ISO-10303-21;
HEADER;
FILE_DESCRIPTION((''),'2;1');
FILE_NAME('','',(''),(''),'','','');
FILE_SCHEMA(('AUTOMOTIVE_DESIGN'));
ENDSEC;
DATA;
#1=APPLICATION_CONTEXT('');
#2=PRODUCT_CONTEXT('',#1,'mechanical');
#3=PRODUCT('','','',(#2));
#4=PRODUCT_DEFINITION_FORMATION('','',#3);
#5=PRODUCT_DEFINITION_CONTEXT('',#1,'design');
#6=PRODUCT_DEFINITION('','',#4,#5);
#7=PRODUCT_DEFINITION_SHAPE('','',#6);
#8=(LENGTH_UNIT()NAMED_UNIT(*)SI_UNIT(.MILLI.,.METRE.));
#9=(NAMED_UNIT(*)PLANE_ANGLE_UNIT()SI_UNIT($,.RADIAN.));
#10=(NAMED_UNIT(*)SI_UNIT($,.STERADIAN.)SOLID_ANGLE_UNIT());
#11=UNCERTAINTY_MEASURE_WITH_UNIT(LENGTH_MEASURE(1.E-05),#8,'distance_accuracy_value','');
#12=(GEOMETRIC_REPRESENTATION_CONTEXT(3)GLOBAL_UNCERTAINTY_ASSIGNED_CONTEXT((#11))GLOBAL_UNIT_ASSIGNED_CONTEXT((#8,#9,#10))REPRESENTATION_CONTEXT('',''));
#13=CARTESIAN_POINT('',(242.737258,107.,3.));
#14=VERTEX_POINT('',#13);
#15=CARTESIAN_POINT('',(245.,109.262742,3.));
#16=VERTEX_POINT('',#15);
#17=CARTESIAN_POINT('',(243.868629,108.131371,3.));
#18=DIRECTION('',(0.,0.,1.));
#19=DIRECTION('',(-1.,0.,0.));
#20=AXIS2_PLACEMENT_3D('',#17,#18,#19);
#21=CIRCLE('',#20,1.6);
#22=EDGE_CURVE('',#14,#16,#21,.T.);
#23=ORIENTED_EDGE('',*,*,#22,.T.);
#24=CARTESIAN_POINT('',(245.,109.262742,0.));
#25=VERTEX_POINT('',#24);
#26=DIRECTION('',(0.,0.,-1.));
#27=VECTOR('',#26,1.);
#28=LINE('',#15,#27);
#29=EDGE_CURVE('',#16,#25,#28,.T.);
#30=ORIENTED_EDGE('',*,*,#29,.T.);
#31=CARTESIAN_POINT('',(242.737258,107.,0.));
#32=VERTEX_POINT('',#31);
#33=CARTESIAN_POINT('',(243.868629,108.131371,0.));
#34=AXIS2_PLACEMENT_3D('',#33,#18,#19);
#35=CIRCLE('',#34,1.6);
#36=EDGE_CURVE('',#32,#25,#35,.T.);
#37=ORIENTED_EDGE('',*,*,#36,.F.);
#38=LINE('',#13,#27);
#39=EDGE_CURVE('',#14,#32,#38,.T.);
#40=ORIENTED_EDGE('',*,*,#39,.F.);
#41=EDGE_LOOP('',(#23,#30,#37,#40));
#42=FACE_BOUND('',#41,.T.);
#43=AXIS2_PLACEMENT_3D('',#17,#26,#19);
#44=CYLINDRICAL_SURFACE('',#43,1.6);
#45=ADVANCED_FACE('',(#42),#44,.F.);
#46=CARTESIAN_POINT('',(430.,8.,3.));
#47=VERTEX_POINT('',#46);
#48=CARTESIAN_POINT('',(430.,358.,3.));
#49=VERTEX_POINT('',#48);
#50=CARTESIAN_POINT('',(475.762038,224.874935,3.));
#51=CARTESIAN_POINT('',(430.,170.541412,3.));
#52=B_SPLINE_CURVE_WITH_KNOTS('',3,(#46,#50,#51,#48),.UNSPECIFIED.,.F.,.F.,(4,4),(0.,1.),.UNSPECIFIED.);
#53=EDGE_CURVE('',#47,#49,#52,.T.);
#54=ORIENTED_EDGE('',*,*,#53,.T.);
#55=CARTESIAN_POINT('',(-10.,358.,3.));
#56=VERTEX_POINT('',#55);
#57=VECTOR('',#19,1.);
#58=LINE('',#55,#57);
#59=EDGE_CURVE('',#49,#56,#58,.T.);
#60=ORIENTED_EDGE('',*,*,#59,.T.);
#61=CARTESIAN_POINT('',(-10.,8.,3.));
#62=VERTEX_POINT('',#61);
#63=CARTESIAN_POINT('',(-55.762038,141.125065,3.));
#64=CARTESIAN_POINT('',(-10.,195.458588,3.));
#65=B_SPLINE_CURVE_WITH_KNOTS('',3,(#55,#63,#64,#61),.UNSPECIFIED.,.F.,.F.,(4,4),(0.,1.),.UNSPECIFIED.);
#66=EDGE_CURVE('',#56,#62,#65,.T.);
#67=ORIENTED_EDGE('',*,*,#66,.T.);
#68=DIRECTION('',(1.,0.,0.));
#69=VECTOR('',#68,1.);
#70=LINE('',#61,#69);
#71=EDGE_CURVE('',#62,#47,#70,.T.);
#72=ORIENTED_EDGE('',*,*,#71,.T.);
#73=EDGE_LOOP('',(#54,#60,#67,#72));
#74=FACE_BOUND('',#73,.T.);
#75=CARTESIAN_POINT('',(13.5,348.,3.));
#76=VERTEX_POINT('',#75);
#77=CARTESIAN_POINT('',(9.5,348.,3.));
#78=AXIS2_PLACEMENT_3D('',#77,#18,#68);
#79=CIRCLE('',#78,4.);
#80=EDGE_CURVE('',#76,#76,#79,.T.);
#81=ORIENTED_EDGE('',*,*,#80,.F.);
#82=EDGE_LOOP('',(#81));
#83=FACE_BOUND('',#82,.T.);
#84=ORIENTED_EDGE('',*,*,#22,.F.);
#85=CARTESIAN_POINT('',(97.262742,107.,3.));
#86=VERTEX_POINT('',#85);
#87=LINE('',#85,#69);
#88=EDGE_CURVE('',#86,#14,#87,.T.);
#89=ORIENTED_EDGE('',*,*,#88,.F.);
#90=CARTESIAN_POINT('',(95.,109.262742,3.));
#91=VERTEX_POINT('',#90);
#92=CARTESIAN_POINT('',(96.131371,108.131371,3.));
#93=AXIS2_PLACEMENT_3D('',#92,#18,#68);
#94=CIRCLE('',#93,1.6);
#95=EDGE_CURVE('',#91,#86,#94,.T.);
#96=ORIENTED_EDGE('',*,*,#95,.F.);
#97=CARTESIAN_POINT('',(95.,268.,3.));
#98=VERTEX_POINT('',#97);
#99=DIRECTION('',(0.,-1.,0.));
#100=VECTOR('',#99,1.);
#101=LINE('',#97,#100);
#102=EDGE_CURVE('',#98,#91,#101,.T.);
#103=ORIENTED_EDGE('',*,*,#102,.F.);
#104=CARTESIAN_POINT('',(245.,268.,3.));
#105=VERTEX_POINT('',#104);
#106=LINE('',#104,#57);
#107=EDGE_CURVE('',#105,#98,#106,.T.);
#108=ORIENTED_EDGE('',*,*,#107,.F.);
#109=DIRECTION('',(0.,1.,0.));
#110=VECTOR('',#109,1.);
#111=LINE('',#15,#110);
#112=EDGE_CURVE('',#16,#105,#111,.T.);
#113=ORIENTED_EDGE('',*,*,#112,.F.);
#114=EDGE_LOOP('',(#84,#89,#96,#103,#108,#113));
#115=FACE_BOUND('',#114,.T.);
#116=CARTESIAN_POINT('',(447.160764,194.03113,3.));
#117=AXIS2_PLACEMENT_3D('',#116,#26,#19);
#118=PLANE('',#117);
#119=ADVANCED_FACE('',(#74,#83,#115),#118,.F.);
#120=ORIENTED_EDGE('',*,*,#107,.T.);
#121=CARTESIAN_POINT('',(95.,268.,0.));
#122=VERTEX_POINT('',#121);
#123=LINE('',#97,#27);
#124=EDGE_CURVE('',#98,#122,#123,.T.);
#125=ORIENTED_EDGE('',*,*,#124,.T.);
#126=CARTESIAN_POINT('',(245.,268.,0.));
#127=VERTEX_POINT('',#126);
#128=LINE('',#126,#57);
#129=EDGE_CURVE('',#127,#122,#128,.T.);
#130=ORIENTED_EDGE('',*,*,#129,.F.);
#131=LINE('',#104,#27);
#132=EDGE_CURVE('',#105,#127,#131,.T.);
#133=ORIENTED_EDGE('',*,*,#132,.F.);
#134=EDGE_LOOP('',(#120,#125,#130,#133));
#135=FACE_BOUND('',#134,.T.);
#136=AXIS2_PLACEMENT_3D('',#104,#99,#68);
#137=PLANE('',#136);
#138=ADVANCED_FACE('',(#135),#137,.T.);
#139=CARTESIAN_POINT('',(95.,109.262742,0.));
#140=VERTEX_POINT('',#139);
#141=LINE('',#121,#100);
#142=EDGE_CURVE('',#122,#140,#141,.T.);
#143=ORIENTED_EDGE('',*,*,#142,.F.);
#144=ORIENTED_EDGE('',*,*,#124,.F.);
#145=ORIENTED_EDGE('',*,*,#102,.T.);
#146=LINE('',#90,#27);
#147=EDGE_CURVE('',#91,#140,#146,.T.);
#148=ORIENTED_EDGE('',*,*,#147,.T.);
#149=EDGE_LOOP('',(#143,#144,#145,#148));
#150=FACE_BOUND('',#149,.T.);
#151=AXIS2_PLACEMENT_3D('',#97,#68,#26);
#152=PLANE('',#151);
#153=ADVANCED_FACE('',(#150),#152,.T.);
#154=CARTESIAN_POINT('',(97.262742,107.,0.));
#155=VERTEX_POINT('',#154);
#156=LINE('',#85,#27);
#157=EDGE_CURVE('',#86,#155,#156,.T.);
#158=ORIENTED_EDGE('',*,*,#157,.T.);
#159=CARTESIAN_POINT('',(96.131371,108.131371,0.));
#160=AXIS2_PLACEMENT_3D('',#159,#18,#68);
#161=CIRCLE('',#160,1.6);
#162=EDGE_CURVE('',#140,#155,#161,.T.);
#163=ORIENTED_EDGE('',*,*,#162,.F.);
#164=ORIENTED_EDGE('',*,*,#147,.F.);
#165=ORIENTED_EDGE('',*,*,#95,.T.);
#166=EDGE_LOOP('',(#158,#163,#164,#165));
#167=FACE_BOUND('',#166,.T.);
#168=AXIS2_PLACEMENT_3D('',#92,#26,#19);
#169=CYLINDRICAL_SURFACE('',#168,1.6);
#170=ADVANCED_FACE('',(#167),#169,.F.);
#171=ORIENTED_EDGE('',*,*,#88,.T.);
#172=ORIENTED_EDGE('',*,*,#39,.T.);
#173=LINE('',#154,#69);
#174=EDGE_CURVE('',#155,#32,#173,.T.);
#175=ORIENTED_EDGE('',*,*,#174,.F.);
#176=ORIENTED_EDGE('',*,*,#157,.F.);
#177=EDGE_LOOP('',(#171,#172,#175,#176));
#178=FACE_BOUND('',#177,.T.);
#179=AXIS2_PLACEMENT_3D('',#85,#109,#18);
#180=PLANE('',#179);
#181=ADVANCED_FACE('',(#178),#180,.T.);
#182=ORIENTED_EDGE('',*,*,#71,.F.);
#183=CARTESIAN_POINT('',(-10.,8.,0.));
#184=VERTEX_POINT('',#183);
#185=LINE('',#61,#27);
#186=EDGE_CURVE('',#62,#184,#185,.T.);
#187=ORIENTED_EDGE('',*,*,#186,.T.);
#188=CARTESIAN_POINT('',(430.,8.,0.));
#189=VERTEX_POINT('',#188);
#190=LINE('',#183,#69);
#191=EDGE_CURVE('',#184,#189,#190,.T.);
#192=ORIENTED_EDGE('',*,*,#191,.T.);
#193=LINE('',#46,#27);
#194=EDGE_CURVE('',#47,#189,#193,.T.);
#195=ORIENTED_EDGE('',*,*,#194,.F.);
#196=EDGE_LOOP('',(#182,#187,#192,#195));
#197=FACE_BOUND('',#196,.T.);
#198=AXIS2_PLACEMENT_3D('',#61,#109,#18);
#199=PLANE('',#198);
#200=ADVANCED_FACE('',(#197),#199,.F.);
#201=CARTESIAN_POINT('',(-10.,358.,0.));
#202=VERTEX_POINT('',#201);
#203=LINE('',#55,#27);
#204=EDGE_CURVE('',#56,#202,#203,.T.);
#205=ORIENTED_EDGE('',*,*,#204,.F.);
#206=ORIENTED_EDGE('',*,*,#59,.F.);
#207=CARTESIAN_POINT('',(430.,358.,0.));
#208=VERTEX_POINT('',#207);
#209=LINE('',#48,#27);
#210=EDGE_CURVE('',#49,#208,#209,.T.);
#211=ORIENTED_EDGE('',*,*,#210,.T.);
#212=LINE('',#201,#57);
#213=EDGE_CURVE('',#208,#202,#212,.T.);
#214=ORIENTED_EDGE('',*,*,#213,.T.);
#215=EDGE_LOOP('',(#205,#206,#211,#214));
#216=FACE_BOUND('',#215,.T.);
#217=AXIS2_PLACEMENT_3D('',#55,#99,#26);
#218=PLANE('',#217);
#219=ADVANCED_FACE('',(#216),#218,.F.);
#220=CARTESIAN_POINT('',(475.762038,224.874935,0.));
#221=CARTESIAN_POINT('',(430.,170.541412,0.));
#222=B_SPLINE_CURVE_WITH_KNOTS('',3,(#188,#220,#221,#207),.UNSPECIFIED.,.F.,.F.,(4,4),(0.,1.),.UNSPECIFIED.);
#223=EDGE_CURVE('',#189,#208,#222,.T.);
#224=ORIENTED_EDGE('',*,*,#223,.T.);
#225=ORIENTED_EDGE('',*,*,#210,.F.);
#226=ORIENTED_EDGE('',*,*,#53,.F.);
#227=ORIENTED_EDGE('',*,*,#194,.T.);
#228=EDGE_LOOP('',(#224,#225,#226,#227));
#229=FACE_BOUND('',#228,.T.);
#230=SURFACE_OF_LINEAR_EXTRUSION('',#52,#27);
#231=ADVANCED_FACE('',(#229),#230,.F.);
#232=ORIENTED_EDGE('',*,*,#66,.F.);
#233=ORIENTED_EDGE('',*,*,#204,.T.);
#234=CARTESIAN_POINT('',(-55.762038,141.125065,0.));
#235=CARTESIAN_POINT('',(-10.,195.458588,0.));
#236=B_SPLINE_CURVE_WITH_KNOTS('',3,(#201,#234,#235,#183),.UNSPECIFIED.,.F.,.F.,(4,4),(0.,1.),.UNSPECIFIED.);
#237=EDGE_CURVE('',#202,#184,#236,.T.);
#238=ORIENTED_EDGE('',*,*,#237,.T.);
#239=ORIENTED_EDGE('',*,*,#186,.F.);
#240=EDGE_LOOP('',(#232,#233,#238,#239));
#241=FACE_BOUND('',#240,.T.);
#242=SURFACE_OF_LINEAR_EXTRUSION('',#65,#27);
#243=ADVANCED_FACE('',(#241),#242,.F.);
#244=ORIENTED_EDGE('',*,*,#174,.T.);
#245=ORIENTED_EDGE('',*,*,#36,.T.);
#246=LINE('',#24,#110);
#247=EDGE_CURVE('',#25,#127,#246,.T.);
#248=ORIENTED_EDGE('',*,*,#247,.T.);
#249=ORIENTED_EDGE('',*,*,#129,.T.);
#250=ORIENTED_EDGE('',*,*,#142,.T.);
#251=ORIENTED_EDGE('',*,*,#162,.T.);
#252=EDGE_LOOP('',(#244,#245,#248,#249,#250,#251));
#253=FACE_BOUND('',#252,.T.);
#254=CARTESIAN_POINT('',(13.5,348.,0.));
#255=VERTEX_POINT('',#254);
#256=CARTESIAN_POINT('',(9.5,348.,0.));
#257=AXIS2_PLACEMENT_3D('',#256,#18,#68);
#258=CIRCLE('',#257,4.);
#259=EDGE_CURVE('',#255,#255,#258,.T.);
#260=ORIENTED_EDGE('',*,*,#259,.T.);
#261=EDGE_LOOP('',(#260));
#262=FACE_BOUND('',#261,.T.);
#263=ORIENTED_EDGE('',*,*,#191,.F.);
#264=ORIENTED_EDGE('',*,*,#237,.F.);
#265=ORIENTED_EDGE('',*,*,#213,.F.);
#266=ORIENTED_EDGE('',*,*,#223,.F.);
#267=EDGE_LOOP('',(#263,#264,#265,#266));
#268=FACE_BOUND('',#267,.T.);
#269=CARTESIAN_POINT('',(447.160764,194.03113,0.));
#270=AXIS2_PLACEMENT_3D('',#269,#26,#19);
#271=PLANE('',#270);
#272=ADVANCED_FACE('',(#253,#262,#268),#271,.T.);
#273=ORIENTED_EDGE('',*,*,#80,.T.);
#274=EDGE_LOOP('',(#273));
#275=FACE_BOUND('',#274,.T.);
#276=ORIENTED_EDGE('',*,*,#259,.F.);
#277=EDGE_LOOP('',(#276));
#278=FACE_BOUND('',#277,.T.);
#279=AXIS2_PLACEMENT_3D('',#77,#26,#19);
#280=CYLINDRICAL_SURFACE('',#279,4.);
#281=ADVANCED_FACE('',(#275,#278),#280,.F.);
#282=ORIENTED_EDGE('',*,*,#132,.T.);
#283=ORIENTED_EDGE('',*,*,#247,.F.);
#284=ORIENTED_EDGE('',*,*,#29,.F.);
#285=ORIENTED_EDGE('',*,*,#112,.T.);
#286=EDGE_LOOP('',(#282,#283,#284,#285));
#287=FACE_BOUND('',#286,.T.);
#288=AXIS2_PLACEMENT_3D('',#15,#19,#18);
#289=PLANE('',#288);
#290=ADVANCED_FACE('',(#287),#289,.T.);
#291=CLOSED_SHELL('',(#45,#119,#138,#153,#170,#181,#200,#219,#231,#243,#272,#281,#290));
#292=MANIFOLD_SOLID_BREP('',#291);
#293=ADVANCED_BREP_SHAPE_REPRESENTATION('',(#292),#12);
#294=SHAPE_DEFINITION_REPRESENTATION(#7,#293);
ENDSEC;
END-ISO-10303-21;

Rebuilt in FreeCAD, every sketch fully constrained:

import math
import FreeCAD as App
import Part
import Sketcher
from FreeCAD import Vector

doc = App.newDocument("Part")
body = doc.addObject("PartDesign::Body", "Body")

# Sketch on XY plane
sketch1 = doc.addObject("Sketcher::SketchObject", "Sketch")
body.addObject(sketch1)
sketch1.AttachmentSupport = (doc.XY_Plane, [""])
sketch1.MapMode = "FlatFace"
sketch1.addGeometry(Part.LineSegment(Vector(-10, 8, 0), Vector(430, 8, 0)), False)
sketch1.addGeometry(Part.BSplineCurve([Vector(430, 8, 0), Vector(475.762038, 224.874935, 0), Vector(430, 170.541412, 0), Vector(430, 358, 0)], [4, 4], [0, 1], False, 3, [1, 1, 1, 1], False), False)
sketch1.addGeometry(Part.LineSegment(Vector(430, 358, 0), Vector(-10, 358, 0)), False)
sketch1.addGeometry(Part.BSplineCurve([Vector(-10, 358, 0), Vector(-55.762038, 141.125065, 0), Vector(-10, 195.458588, 0), Vector(-10, 8, 0)], [4, 4], [0, 1], False, 3, [1, 1, 1, 1], False), False)
sketch1.addGeometry(Part.LineSegment(Vector(95, 109.262742, 0), Vector(95, 268, 0)), False)
sketch1.addGeometry(Part.LineSegment(Vector(95, 268, 0), Vector(245, 268, 0)), False)
sketch1.addGeometry(Part.LineSegment(Vector(245, 268, 0), Vector(245, 109.262742, 0)), False)
sketch1.addGeometry(Part.ArcOfCircle(Part.Circle(Vector(243.868629, 108.131371, 0), Vector(0, 0, 1), 1.6), math.radians(-135), math.radians(45)), False)
sketch1.addGeometry(Part.LineSegment(Vector(242.737258, 107, 0), Vector(97.262742, 107, 0)), False)
sketch1.addGeometry(Part.ArcOfCircle(Part.Circle(Vector(96.131371, 108.131371, 0), Vector(0, 0, 1), 1.6), math.radians(135), math.radians(315)), False)
sketch1.addGeometry(Part.Circle(Vector(9.5, 348, 0), Vector(0, 0, 1), 4), False)
sketch1.addConstraint(Sketcher.Constraint("Block", 1))
sketch1.addConstraint(Sketcher.Constraint("Block", 3))
sketch1.addConstraint(Sketcher.Constraint("Coincident", 0, 2, 1, 1))
sketch1.addConstraint(Sketcher.Constraint("Coincident", 1, 2, 2, 1))
sketch1.addConstraint(Sketcher.Constraint("Coincident", 2, 2, 3, 1))
sketch1.addConstraint(Sketcher.Constraint("Coincident", 3, 2, 0, 1))
sketch1.addConstraint(Sketcher.Constraint("Coincident", 4, 2, 5, 1))
sketch1.addConstraint(Sketcher.Constraint("Coincident", 5, 2, 6, 1))
sketch1.addConstraint(Sketcher.Constraint("Coincident", 6, 2, 7, 2))
sketch1.addConstraint(Sketcher.Constraint("Coincident", 7, 1, 8, 1))
sketch1.addConstraint(Sketcher.Constraint("Coincident", 8, 2, 9, 2))
sketch1.addConstraint(Sketcher.Constraint("Coincident", 9, 1, 4, 1))
sketch1.addConstraint(Sketcher.Constraint("Vertical", 4))
sketch1.addConstraint(Sketcher.Constraint("Horizontal", 5))
sketch1.addConstraint(Sketcher.Constraint("Vertical", 6))
sketch1.addConstraint(Sketcher.Constraint("Horizontal", 8))
sketch1.addConstraint(Sketcher.Constraint("Equal", 7, 9))
sketch1.addConstraint(Sketcher.Constraint("Horizontal", 7, 3, 9, 3))
sketch1.addConstraint(Sketcher.Constraint("Horizontal", 6, 2, 9, 1))
sketch1.addConstraint(Sketcher.Constraint("Diameter", 10, 8.0))
sketch1.addConstraint(Sketcher.Constraint("Radius", 7, 1.6))
sketch1.addConstraint(Sketcher.Constraint("DistanceX", 5, 1, 5, 2, 150.0))
sketch1.addConstraint(Sketcher.Constraint("DistanceY", -1, 1, 10, 3, 348.0))
sketch1.addConstraint(Sketcher.Constraint("DistanceX", -1, 1, 4, 2, 95.0))
sketch1.addConstraint(Sketcher.Constraint("DistanceY", -1, 1, 4, 2, 268.0))
sketch1.addConstraint(Sketcher.Constraint("DistanceY", -1, 1, 7, 1, 107.0))
sketch1.addConstraint(Sketcher.Constraint("DistanceX", -1, 1, 10, 3, 9.5))
sketch1.addConstraint(Sketcher.Constraint("DistanceY", 4, 1, 4, 2, 158.737258))
sketch1.addConstraint(Sketcher.Constraint("DistanceX", -1, 1, 7, 3, 243.868629))
pad1 = doc.addObject("PartDesign::Pad", "Pad")
body.addObject(pad1)
pad1.Profile = sketch1
pad1.Length = 3

doc.recompute()
